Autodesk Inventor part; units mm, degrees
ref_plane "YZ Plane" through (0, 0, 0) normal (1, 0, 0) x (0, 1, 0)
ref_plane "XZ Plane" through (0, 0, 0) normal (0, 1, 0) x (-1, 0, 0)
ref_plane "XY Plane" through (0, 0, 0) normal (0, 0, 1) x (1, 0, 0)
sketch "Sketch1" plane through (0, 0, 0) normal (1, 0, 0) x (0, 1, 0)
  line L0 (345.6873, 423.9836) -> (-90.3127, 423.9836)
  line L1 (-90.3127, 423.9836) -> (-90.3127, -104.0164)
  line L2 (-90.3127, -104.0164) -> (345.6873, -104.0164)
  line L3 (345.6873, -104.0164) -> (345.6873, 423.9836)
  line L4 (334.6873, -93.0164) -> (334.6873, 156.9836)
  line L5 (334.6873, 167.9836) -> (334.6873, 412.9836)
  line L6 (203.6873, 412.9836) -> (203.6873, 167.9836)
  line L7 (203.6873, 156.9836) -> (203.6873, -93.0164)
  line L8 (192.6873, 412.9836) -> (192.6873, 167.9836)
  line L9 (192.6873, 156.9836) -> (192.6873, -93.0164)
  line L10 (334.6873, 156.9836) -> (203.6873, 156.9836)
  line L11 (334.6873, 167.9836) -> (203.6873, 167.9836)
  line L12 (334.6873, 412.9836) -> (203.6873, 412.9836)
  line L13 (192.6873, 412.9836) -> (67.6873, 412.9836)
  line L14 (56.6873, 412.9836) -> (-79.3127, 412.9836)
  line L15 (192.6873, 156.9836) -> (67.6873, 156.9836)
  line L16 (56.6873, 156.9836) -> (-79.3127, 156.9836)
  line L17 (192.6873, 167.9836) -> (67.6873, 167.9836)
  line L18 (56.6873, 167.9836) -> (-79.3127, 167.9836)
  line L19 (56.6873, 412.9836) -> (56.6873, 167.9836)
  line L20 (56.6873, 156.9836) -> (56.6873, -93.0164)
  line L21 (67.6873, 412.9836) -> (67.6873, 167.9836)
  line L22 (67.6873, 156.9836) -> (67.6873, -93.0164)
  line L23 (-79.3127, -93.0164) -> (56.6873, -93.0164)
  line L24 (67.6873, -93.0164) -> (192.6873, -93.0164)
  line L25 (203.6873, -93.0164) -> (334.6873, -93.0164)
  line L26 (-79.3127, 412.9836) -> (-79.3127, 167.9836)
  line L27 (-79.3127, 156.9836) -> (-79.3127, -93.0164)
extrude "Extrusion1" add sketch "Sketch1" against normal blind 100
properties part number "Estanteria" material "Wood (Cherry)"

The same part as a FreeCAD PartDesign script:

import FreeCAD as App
import Part
import Sketcher
Q = App.Units.Quantity


def add_polygon(sketch, points):
    """Adds a closed chain of lines whose ends are joined by coincident constraints."""
    first, n = sketch.GeometryCount, len(points)
    for a, b in zip(points, points[1:] + points[:1]):
        sketch.addGeometry(Part.LineSegment(App.Vector(*a, 0), App.Vector(*b, 0)), False)
    for i in range(n):
        sketch.addConstraint(Sketcher.Constraint("Coincident", first + i, 2, first + (i + 1) % n, 1))

doc = App.newDocument("Part")
body = doc.addObject("PartDesign::Body", "Body")

# Sketch on YZ plane
sketch1 = doc.addObject("Sketcher::SketchObject", "Sketch")
body.addObject(sketch1)
sketch1.AttachmentSupport = (doc.YZ_Plane, [""])
sketch1.MapMode = "FlatFace"
add_polygon(sketch1, [(346, -104), (346, 424), (-90, 424), (-90, -104)])  # lines 0-3
add_polygon(sketch1, [(-79, 157), (57, 157), (57, -93), (-79, -93)])  # lines 4-7
add_polygon(sketch1, [(68, 157), (193, 157), (193, -93), (68, -93)])  # lines 8-11
add_polygon(sketch1, [(335, 157), (335, -93), (204, -93), (204, 157)])  # lines 12-15
add_polygon(sketch1, [(-79, 413), (57, 413), (57, 168), (-79, 168)])  # lines 16-19
add_polygon(sketch1, [(68, 413), (193, 413), (193, 168), (68, 168)])  # lines 20-23
add_polygon(sketch1, [(335, 413), (335, 168), (204, 168), (204, 413)])  # lines 24-27
sketch1.addConstraint(Sketcher.Constraint("Vertical", 0))
sketch1.addConstraint(Sketcher.Constraint("Horizontal", 1))
sketch1.addConstraint(Sketcher.Constraint("Vertical", 2))
sketch1.addConstraint(Sketcher.Constraint("Horizontal", 3))
sketch1.addConstraint(Sketcher.Constraint("Horizontal", 4))
sketch1.addConstraint(Sketcher.Constraint("Vertical", 5))
sketch1.addConstraint(Sketcher.Constraint("Horizontal", 6))
sketch1.addConstraint(Sketcher.Constraint("Vertical", 7))
sketch1.addConstraint(Sketcher.Constraint("Horizontal", 8))
sketch1.addConstraint(Sketcher.Constraint("Vertical", 9))
sketch1.addConstraint(Sketcher.Constraint("Horizontal", 10))
sketch1.addConstraint(Sketcher.Constraint("Vertical", 11))
sketch1.addConstraint(Sketcher.Constraint("Vertical", 12))
sketch1.addConstraint(Sketcher.Constraint("Horizontal", 13))
sketch1.addConstraint(Sketcher.Constraint("Vertical", 14))
sketch1.addConstraint(Sketcher.Constraint("Horizontal", 15))
sketch1.addConstraint(Sketcher.Constraint("Horizontal", 16))
sketch1.addConstraint(Sketcher.Constraint("Vertical", 17))
sketch1.addConstraint(Sketcher.Constraint("Horizontal", 18))
sketch1.addConstraint(Sketcher.Constraint("Vertical", 19))
sketch1.addConstraint(Sketcher.Constraint("Horizontal", 20))
sketch1.addConstraint(Sketcher.Constraint("Vertical", 21))
sketch1.addConstraint(Sketcher.Constraint("Horizontal", 22))
sketch1.addConstraint(Sketcher.Constraint("Vertical", 23))
sketch1.addConstraint(Sketcher.Constraint("Vertical", 24))
sketch1.addConstraint(Sketcher.Constraint("Horizontal", 25))
sketch1.addConstraint(Sketcher.Constraint("Vertical", 26))
sketch1.addConstraint(Sketcher.Constraint("Horizontal", 27))
sketch1.addConstraint(Sketcher.Constraint("Horizontal", 7, 2, 8, 2))
sketch1.addConstraint(Sketcher.Constraint("Horizontal", 6, 2, 9, 2))
sketch1.addConstraint(Sketcher.Constraint("Horizontal", 10, 2, 12, 2))
sketch1.addConstraint(Sketcher.Constraint("Horizontal", 11, 2, 14, 2))
sketch1.addConstraint(Sketcher.Constraint("Horizontal", 19, 2, 20, 2))
sketch1.addConstraint(Sketcher.Constraint("Horizontal", 18, 2, 21, 2))
sketch1.addConstraint(Sketcher.Constraint("Horizontal", 22, 2, 24, 2))
sketch1.addConstraint(Sketcher.Constraint("Horizontal", 23, 2, 26, 2))
sketch1.addConstraint(Sketcher.Constraint("Vertical", 5, 2, 16, 2))
sketch1.addConstraint(Sketcher.Constraint("Vertical", 7, 2, 18, 2))
sketch1.addConstraint(Sketcher.Constraint("Vertical", 9, 2, 20, 2))
sketch1.addConstraint(Sketcher.Constraint("Vertical", 11, 2, 22, 2))
sketch1.addConstraint(Sketcher.Constraint("Vertical", 15, 2, 24, 2))
sketch1.addConstraint(Sketcher.Constraint("Vertical", 14, 2, 25, 2))
sketch1.addConstraint(Sketcher.Constraint("DistanceX", 1, 2, 1, 1, Q("436 mm")))
sketch1.addConstraint(Sketcher.Constraint("DistanceX", 4, 1, 4, 2, Q("136 mm")))
sketch1.addConstraint(Sketcher.Constraint("DistanceX", 8, 1, 8, 2, Q("125 mm")))
sketch1.addConstraint(Sketcher.Constraint("DistanceX", 13, 2, 13, 1, Q("131 mm")))
sketch1.addConstraint(Sketcher.Constraint("DistanceY", 0, 1, 0, 2, Q("528 mm")))
sketch1.addConstraint(Sketcher.Constraint("DistanceY", 5, 2, 5, 1, Q("250 mm")))
sketch1.addConstraint(Sketcher.Constraint("DistanceY", 17, 2, 17, 1, Q("245 mm")))
sketch1.addConstraint(Sketcher.Constraint("DistanceX", 2, 2, 4, 2, Q("147 mm")))
sketch1.addConstraint(Sketcher.Constraint("DistanceY", 2, 2, 4, 2, Q("261 mm")))
sketch1.addConstraint(Sketcher.Constraint("DistanceX", 4, 2, 8, 2, Q("136 mm")))
sketch1.addConstraint(Sketcher.Constraint("DistanceX", 12, 2, 3, 2, Q("11 mm")))
sketch1.addConstraint(Sketcher.Constraint("DistanceY", 16, 2, 1, 2, Q("11 mm")))
sketch1.addConstraint(Sketcher.Constraint("DistanceX", -1, 1, 0, 2, Q("345.6873 mm")))
sketch1.addConstraint(Sketcher.Constraint("DistanceY", -1, 1, 0, 2, Q("423.9836 mm")))
pad1 = doc.addObject("PartDesign::Pad", "Pad")
body.addObject(pad1)
pad1.Profile = sketch1
pad1.Length = 100
pad1.Reversed = True

doc.recompute()
